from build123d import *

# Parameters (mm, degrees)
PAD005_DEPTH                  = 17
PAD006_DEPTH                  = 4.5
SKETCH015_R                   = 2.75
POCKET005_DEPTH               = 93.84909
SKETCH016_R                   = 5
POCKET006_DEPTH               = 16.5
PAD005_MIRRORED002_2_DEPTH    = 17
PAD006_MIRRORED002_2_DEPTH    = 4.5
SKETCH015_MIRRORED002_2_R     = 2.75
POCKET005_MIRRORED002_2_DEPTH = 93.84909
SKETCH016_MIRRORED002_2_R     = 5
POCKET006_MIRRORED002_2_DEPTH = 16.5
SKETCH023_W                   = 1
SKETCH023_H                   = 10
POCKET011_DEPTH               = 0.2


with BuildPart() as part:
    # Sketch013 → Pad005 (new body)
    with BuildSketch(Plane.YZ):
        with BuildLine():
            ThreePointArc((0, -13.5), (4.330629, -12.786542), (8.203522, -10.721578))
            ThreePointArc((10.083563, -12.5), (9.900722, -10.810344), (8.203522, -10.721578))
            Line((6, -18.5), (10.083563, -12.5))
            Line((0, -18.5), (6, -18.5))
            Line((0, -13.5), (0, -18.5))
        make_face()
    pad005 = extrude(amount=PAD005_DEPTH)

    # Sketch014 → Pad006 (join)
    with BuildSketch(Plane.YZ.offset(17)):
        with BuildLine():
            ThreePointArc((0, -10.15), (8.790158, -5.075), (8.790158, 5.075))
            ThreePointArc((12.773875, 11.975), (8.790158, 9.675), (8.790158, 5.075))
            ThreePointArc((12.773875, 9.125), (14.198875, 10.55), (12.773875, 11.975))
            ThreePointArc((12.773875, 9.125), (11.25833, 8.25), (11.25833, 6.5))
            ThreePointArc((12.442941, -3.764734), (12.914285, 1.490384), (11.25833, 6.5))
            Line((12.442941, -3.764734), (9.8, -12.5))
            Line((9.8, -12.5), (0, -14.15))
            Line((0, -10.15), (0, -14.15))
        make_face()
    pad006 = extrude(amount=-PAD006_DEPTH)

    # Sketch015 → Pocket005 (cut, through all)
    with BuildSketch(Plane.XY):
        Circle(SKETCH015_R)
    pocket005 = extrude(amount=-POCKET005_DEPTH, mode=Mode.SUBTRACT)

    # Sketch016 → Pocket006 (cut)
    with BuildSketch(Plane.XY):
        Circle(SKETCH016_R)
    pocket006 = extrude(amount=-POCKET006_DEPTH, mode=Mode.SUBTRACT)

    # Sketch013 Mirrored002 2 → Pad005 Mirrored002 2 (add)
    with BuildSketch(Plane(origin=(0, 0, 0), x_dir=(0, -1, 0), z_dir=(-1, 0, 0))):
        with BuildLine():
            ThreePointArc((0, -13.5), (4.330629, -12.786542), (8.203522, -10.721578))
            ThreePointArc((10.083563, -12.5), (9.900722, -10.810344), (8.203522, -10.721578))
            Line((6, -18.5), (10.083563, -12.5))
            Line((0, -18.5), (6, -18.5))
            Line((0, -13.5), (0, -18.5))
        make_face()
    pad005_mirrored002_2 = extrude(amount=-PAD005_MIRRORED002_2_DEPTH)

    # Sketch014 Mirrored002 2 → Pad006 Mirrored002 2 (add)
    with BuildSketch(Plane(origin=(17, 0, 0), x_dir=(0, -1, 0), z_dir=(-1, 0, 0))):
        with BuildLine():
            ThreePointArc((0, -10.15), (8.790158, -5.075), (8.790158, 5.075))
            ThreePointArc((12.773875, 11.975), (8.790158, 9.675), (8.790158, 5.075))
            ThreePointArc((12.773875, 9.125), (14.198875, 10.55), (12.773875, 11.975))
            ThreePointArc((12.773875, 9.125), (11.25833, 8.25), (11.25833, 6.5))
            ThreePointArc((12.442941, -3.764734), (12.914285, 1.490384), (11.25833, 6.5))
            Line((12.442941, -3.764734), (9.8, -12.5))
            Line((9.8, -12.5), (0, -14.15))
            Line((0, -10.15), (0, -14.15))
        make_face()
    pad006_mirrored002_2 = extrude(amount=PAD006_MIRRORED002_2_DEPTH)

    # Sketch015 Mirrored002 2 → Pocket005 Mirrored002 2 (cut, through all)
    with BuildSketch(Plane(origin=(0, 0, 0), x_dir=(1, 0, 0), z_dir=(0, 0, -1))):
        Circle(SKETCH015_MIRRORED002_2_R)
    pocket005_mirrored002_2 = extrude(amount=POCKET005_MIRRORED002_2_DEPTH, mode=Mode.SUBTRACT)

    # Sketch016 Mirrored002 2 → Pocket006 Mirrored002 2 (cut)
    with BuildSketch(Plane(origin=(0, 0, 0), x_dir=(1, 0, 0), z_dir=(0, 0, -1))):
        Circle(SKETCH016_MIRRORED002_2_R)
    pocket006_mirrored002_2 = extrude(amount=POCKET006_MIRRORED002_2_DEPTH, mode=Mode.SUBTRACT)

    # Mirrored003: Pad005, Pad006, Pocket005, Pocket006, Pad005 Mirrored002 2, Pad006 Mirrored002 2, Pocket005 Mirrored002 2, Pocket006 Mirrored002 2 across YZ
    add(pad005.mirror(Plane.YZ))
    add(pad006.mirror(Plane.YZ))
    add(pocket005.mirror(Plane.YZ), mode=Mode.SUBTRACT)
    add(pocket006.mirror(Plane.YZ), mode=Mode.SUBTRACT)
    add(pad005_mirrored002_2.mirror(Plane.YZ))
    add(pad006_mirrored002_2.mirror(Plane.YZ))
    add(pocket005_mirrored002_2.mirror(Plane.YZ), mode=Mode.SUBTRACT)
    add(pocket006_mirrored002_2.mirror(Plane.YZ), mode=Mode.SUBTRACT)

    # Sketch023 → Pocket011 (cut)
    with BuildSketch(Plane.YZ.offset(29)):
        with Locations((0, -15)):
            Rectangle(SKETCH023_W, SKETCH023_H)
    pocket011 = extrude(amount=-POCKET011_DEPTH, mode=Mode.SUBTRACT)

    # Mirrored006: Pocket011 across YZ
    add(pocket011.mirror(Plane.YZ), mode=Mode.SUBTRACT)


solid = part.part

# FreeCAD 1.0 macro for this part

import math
import FreeCAD as App
import Part
import Sketcher
Q = App.Units.Quantity


def add_polygon(sketch, points):
    """Adds a closed chain of lines whose ends are joined by coincident constraints."""
    first, n = sketch.GeometryCount, len(points)
    for a, b in zip(points, points[1:] + points[:1]):
        sketch.addGeometry(Part.LineSegment(App.Vector(*a, 0), App.Vector(*b, 0)), False)
    for i in range(n):
        sketch.addConstraint(Sketcher.Constraint("Coincident", first + i, 2, first + (i + 1) % n, 1))

doc = App.newDocument("Part")
body = doc.addObject("PartDesign::Body", "Body")

sketch1 = body.newObject("Sketcher::SketchObject", "Sketch")
sketch1.AttachmentSupport = (doc.getObject("YZ_Plane"), [""])
sketch1.MapMode = "FlatFace"
sketch1.addGeometry([
    Part.ArcOfCircle(Part.Circle(App.Vector(0, 0, 0), App.Vector(0, 0, 1), 13.5), math.radians(-90.000002), math.radians(-52.578907)),
    Part.LineSegment(App.Vector(0, -13.5, 0), App.Vector(0, -18.5, 0)),
    Part.LineSegment(App.Vector(0, -18.5, 0), App.Vector(6, -18.5, 0)),
    Part.LineSegment(App.Vector(6, -18.5, 0), App.Vector(10.083563, -12.5, 0)),
    Part.ArcOfCircle(Part.Circle(App.Vector(9, -11.762534, 0), App.Vector(0, 0, 1), 1.310712), math.radians(-34.238957), math.radians(127.421082)),
], False)
sketch1.addConstraint([
    Sketcher.Constraint("Coincident", 0, 1, 1, 1),
    Sketcher.Constraint("Coincident", 1, 2, 2, 1),
    Sketcher.Constraint("Coincident", 2, 2, 3, 1),
    Sketcher.Constraint("Tangent", 3, 2, 4, 1),
    Sketcher.Constraint("Tangent", 4, 2, 0, 2),
    Sketcher.Constraint("Vertical", 1),
    Sketcher.Constraint("Horizontal", 2),
    Sketcher.Constraint("Coincident", 0, 3, -1, 1),
    Sketcher.Constraint("PointOnObject", 0, 1, -2),
    Sketcher.Constraint("Radius", 0, Q("13.5 mm")),
    Sketcher.Constraint("DistanceX", 2, 1, 2, 2, Q("6 mm")),
    Sketcher.Constraint("DistanceY", 1, 2, 1, 1, Q("5 mm")),
    Sketcher.Constraint("DistanceX", -1, 1, 4, 3, Q("9 mm")),
    Sketcher.Constraint("DistanceY", 2, 2, 3, 2, Q("6 mm")),
])
pad1 = body.newObject("PartDesign::Pad", "Pad")
pad1.Profile = sketch1
pad1.Length = 17

sketch2 = body.newObject("Sketcher::SketchObject", "Sketch001")
sketch2.AttachmentSupport = (doc.getObject("YZ_Plane"), [""])
sketch2.MapMode = "FlatFace"
sketch2.AttachmentOffset = App.Placement(App.Vector(0, 0, 17), App.Rotation())
sketch2.addGeometry([
    Part.ArcOfCircle(Part.Circle(App.Vector(0, 0, 0), App.Vector(0, 0, 1), 10.15), math.radians(-90.000001), math.radians(30)),
    Part.LineSegment(App.Vector(0, -10.15, 0), App.Vector(0, -14.15, 0)),
    Part.LineSegment(App.Vector(0, -14.15, 0), App.Vector(9.8, -12.5, 0)),
    Part.LineSegment(App.Vector(9.8, -12.5, 0), App.Vector(12.442941, -3.764734, 0)),
    Part.ArcOfCircle(Part.Circle(App.Vector(0.000001, 0, 0), App.Vector(0, 0, 1), 12.999999), math.radians(-16.833707), math.radians(30.000005)),
    Part.ArcOfCircle(Part.Circle(App.Vector(12.773874, 7.375, 0), App.Vector(0, 0, 1), 1.75), math.radians(89.999982), math.radians(210)),
    Part.ArcOfCircle(Part.Circle(App.Vector(12.773875, 10.55, 0), App.Vector(0, 0, 1), 1.425), math.radians(-90), math.radians(90)),
    Part.ArcOfCircle(Part.Circle(App.Vector(12.773875, 7.375, 0), App.Vector(0, 0, 1), 4.6), math.radians(89.999998), math.radians(210)),
], False)
sketch2.addConstraint([
    Sketcher.Constraint("Coincident", 0, 1, 1, 1),
    Sketcher.Constraint("Coincident", 1, 2, 2, 1),
    Sketcher.Constraint("Coincident", 2, 2, 3, 1),
    Sketcher.Constraint("Tangent", 3, 2, 4, 1),
    Sketcher.Constraint("Tangent", 4, 2, 5, 2),
    Sketcher.Constraint("Tangent", 5, 1, 6, 1),
    Sketcher.Constraint("Tangent", 6, 2, 7, 1),
    Sketcher.Constraint("Tangent", 7, 2, 0, 2),
    Sketcher.Constraint("Vertical", 1),
    Sketcher.Constraint("Coincident", 0, 3, -1, 1),
    Sketcher.Constraint("Coincident", 4, 3, -1, 1),
    Sketcher.Constraint("Coincident", 7, 3, 5, 3),
    Sketcher.Constraint("PointOnObject", 0, 1, -2),
    Sketcher.Constraint("Vertical", 5, 3, 6, 3),
    Sketcher.Constraint("Radius", 4, Q("12.999999 mm")),
    Sketcher.Constraint("Radius", 7, Q("4.6 mm")),
    Sketcher.Constraint("DistanceY", 1, 2, 1, 1, Q("4 mm")),
    Sketcher.Constraint("Radius", 0, Q("10.15 mm")),
    Sketcher.Constraint("DistanceX", -1, 1, 2, 2, Q("9.8 mm")),
    Sketcher.Constraint("DistanceY", 2, 2, -1, 1, Q("12.5 mm")),
    Sketcher.Constraint("DistanceY", -1, 1, 4, 2, Q("6.5 mm")),
])
pad2 = body.newObject("PartDesign::Pad", "Pad001")
pad2.Profile = sketch2
pad2.Length = 4.5
pad2.Reversed = True

sketch3 = body.newObject("Sketcher::SketchObject", "Sketch002")
sketch3.AttachmentSupport = (doc.getObject("XY_Plane"), [""])
sketch3.MapMode = "FlatFace"
sketch3.addGeometry(Part.Circle(App.Vector(0, 0, 0), App.Vector(0, 0, 1), 2.75), False)
sketch3.addConstraint([
    Sketcher.Constraint("Coincident", 0, 3, -1, 1),
    Sketcher.Constraint("Diameter", 0, Q("5.5 mm")),
])
pocket1 = body.newObject("PartDesign::Pocket", "Pocket")
pocket1.Profile = sketch3
pocket1.Type = "ThroughAll"

sketch4 = body.newObject("Sketcher::SketchObject", "Sketch003")
sketch4.AttachmentSupport = (doc.getObject("XY_Plane"), [""])
sketch4.MapMode = "FlatFace"
sketch4.addGeometry(Part.Circle(App.Vector(0, 0, 0), App.Vector(0, 0, 1), 5), False)
sketch4.addConstraint([
    Sketcher.Constraint("Coincident", 0, 3, -1, 1),
    Sketcher.Constraint("Diameter", 0, Q("10 mm")),
])
pocket2 = body.newObject("PartDesign::Pocket", "Pocket001")
pocket2.Profile = sketch4
pocket2.Length = 16.5

sketch5 = body.newObject("Sketcher::SketchObject", "Sketch004")
sketch5.AttachmentSupport = (doc.getObject("YZ_Plane"), [""])
sketch5.MapMode = "FlatFace"
sketch5.addGeometry([
    Part.ArcOfCircle(Part.Circle(App.Vector(0, 0, 0), App.Vector(0, 0, 1), 13.5), math.radians(-127.421093), math.radians(-89.999998)),
    Part.LineSegment(App.Vector(0, -13.5, 0), App.Vector(0, -18.5, 0)),
    Part.LineSegment(App.Vector(0, -18.5, 0), App.Vector(-6, -18.5, 0)),
    Part.LineSegment(App.Vector(-6, -18.5, 0), App.Vector(-10.083563, -12.5, 0)),
    Part.ArcOfCircle(Part.Circle(App.Vector(-9, -11.762534, 0), App.Vector(0, 0, 1), 1.310712), math.radians(52.578918), math.radians(214.238957)),
], False)
sketch5.addConstraint([
    Sketcher.Constraint("Coincident", 0, 2, 1, 1),
    Sketcher.Constraint("Coincident", 1, 2, 2, 1),
    Sketcher.Constraint("Coincident", 2, 2, 3, 1),
    Sketcher.Constraint("Tangent", 3, 2, 4, 2),
    Sketcher.Constraint("Tangent", 4, 1, 0, 1),
    Sketcher.Constraint("Vertical", 1),
    Sketcher.Constraint("Horizontal", 2),
    Sketcher.Constraint("Coincident", 0, 3, -1, 1),
    Sketcher.Constraint("PointOnObject", 0, 2, -2),
    Sketcher.Constraint("Radius", 0, Q("13.5 mm")),
    Sketcher.Constraint("DistanceX", 2, 2, 2, 1, Q("6 mm")),
    Sketcher.Constraint("DistanceY", 1, 2, 1, 1, Q("5 mm")),
    Sketcher.Constraint("DistanceX", 4, 3, -1, 1, Q("9 mm")),
    Sketcher.Constraint("DistanceY", 2, 2, 3, 2, Q("6 mm")),
])
pad3 = body.newObject("PartDesign::Pad", "Pad002")
pad3.Profile = sketch5
pad3.Length = 17

sketch6 = body.newObject("Sketcher::SketchObject", "Sketch005")
sketch6.AttachmentSupport = (doc.getObject("YZ_Plane"), [""])
sketch6.MapMode = "FlatFace"
sketch6.AttachmentOffset = App.Placement(App.Vector(0, 0, 17), App.Rotation())
sketch6.addGeometry([
    Part.ArcOfCircle(Part.Circle(App.Vector(0, 0, 0), App.Vector(0, 0, 1), 10.15), math.radians(150), math.radians(270.000001)),
    Part.LineSegment(App.Vector(0, -10.15, 0), App.Vector(0, -14.15, 0)),
    Part.LineSegment(App.Vector(0, -14.15, 0), App.Vector(-9.8, -12.5, 0)),
    Part.LineSegment(App.Vector(-9.8, -12.5, 0), App.Vector(-12.442941, -3.764734, 0)),
    Part.ArcOfCircle(Part.Circle(App.Vector(-0.000001, 0, 0), App.Vector(0, 0, 1), 12.999999), math.radians(149.999995), math.radians(196.833707)),
    Part.ArcOfCircle(Part.Circle(App.Vector(-12.773874, 7.375, 0), App.Vector(0, 0, 1), 1.75), math.radians(-30), math.radians(90.000018)),
    Part.ArcOfCircle(Part.Circle(App.Vector(-12.773875, 10.55, 0), App.Vector(0, 0, 1), 1.425), math.radians(90), math.radians(270)),
    Part.ArcOfCircle(Part.Circle(App.Vector(-12.773875, 7.375, 0), App.Vector(0, 0, 1), 4.6), math.radians(-30), math.radians(90.000002)),
], False)
sketch6.addConstraint([
    Sketcher.Constraint("Coincident", 0, 2, 1, 1),
    Sketcher.Constraint("Coincident", 1, 2, 2, 1),
    Sketcher.Constraint("Coincident", 2, 2, 3, 1),
    Sketcher.Constraint("Tangent", 3, 2, 4, 2),
    Sketcher.Constraint("Tangent", 4, 1, 5, 1),
    Sketcher.Constraint("Tangent", 5, 2, 6, 2),
    Sketcher.Constraint("Tangent", 6, 1, 7, 2),
    Sketcher.Constraint("Tangent", 7, 1, 0, 1),
    Sketcher.Constraint("Vertical", 1),
    Sketcher.Constraint("Coincident", 0, 3, -1, 1),
    Sketcher.Constraint("Coincident", 4, 3, -1, 1),
    Sketcher.Constraint("Coincident", 7, 3, 5, 3),
    Sketcher.Constraint("PointOnObject", 0, 2, -2),
    Sketcher.Constraint("Vertical", 5, 3, 6, 3),
    Sketcher.Constraint("Radius", 4, Q("12.999999 mm")),
    Sketcher.Constraint("Radius", 7, Q("4.6 mm")),
    Sketcher.Constraint("DistanceY", 1, 2, 1, 1, Q("4 mm")),
    Sketcher.Constraint("Radius", 0, Q("10.15 mm")),
    Sketcher.Constraint("DistanceX", 2, 2, -1, 1, Q("9.8 mm")),
    Sketcher.Constraint("DistanceY", 2, 2, -1, 1, Q("12.5 mm")),
    Sketcher.Constraint("DistanceY", -1, 1, 4, 1, Q("6.5 mm")),
])
pad4 = body.newObject("PartDesign::Pad", "Pad003")
pad4.Profile = sketch6
pad4.Length = 4.5
pad4.Reversed = True

sketch7 = body.newObject("Sketcher::SketchObject", "Sketch006")
sketch7.AttachmentSupport = (doc.getObject("XY_Plane"), [""])
sketch7.MapMode = "FlatFace"
sketch7.addGeometry(Part.Circle(App.Vector(0, 0, 0), App.Vector(0, 0, 1), 2.75), False)
sketch7.addConstraint([
    Sketcher.Constraint("Coincident", 0, 3, -1, 1),
    Sketcher.Constraint("Diameter", 0, Q("5.5 mm")),
])
pocket3 = body.newObject("PartDesign::Pocket", "Pocket002")
pocket3.Profile = sketch7
pocket3.Type = "ThroughAll"

sketch8 = body.newObject("Sketcher::SketchObject", "Sketch007")
sketch8.AttachmentSupport = (doc.getObject("XY_Plane"), [""])
sketch8.MapMode = "FlatFace"
sketch8.addGeometry(Part.Circle(App.Vector(0, 0, 0), App.Vector(0, 0, 1), 5), False)
sketch8.addConstraint([
    Sketcher.Constraint("Coincident", 0, 3, -1, 1),
    Sketcher.Constraint("Diameter", 0, Q("10 mm")),
])
pocket4 = body.newObject("PartDesign::Pocket", "Pocket003")
pocket4.Profile = sketch8
pocket4.Length = 16.5
doc.recompute()

mirrored = body.newObject("PartDesign::Mirrored", "Mirrored")
mirrored.Originals = [pad1, pad2, pocket1, pocket2, pad3, pad4, pocket3, pocket4]
mirrored.MirrorPlane = (doc.getObject("YZ_Plane"), [""])
body.Tip = mirrored

sketch9 = body.newObject("Sketcher::SketchObject", "Sketch008")
sketch9.AttachmentSupport = (doc.getObject("YZ_Plane"), [""])
sketch9.MapMode = "FlatFace"
sketch9.AttachmentOffset = App.Placement(App.Vector(0, 0, 29), App.Rotation())
add_polygon(sketch9, [(-0.5, -10), (-0.5, -20), (0.5, -20), (0.5, -10)])
sketch9.addConstraint([
    Sketcher.Constraint("Vertical", 0),
    Sketcher.Constraint("Horizontal", 1),
    Sketcher.Constraint("Vertical", 2),
    Sketcher.Constraint("Horizontal", 3),
    Sketcher.Constraint("DistanceX", 1, 1, 1, 2, Q("1 mm")),
    Sketcher.Constraint("DistanceY", 0, 2, 0, 1, Q("10 mm")),
    Sketcher.Constraint("DistanceY", 0, 2, -1, 1, Q("20 mm")),
    Sketcher.Constraint("DistanceX", 0, 2, -1, 1, Q("0.5 mm")),
])
pocket5 = body.newObject("PartDesign::Pocket", "Pocket004")
pocket5.Profile = sketch9
pocket5.Length = 0.2
doc.recompute()

mirrored2 = body.newObject("PartDesign::Mirrored", "Mirrored001")
mirrored2.Originals = [pocket5]
mirrored2.MirrorPlane = (doc.getObject("YZ_Plane"), [""])
body.Tip = mirrored2

doc.recompute()
